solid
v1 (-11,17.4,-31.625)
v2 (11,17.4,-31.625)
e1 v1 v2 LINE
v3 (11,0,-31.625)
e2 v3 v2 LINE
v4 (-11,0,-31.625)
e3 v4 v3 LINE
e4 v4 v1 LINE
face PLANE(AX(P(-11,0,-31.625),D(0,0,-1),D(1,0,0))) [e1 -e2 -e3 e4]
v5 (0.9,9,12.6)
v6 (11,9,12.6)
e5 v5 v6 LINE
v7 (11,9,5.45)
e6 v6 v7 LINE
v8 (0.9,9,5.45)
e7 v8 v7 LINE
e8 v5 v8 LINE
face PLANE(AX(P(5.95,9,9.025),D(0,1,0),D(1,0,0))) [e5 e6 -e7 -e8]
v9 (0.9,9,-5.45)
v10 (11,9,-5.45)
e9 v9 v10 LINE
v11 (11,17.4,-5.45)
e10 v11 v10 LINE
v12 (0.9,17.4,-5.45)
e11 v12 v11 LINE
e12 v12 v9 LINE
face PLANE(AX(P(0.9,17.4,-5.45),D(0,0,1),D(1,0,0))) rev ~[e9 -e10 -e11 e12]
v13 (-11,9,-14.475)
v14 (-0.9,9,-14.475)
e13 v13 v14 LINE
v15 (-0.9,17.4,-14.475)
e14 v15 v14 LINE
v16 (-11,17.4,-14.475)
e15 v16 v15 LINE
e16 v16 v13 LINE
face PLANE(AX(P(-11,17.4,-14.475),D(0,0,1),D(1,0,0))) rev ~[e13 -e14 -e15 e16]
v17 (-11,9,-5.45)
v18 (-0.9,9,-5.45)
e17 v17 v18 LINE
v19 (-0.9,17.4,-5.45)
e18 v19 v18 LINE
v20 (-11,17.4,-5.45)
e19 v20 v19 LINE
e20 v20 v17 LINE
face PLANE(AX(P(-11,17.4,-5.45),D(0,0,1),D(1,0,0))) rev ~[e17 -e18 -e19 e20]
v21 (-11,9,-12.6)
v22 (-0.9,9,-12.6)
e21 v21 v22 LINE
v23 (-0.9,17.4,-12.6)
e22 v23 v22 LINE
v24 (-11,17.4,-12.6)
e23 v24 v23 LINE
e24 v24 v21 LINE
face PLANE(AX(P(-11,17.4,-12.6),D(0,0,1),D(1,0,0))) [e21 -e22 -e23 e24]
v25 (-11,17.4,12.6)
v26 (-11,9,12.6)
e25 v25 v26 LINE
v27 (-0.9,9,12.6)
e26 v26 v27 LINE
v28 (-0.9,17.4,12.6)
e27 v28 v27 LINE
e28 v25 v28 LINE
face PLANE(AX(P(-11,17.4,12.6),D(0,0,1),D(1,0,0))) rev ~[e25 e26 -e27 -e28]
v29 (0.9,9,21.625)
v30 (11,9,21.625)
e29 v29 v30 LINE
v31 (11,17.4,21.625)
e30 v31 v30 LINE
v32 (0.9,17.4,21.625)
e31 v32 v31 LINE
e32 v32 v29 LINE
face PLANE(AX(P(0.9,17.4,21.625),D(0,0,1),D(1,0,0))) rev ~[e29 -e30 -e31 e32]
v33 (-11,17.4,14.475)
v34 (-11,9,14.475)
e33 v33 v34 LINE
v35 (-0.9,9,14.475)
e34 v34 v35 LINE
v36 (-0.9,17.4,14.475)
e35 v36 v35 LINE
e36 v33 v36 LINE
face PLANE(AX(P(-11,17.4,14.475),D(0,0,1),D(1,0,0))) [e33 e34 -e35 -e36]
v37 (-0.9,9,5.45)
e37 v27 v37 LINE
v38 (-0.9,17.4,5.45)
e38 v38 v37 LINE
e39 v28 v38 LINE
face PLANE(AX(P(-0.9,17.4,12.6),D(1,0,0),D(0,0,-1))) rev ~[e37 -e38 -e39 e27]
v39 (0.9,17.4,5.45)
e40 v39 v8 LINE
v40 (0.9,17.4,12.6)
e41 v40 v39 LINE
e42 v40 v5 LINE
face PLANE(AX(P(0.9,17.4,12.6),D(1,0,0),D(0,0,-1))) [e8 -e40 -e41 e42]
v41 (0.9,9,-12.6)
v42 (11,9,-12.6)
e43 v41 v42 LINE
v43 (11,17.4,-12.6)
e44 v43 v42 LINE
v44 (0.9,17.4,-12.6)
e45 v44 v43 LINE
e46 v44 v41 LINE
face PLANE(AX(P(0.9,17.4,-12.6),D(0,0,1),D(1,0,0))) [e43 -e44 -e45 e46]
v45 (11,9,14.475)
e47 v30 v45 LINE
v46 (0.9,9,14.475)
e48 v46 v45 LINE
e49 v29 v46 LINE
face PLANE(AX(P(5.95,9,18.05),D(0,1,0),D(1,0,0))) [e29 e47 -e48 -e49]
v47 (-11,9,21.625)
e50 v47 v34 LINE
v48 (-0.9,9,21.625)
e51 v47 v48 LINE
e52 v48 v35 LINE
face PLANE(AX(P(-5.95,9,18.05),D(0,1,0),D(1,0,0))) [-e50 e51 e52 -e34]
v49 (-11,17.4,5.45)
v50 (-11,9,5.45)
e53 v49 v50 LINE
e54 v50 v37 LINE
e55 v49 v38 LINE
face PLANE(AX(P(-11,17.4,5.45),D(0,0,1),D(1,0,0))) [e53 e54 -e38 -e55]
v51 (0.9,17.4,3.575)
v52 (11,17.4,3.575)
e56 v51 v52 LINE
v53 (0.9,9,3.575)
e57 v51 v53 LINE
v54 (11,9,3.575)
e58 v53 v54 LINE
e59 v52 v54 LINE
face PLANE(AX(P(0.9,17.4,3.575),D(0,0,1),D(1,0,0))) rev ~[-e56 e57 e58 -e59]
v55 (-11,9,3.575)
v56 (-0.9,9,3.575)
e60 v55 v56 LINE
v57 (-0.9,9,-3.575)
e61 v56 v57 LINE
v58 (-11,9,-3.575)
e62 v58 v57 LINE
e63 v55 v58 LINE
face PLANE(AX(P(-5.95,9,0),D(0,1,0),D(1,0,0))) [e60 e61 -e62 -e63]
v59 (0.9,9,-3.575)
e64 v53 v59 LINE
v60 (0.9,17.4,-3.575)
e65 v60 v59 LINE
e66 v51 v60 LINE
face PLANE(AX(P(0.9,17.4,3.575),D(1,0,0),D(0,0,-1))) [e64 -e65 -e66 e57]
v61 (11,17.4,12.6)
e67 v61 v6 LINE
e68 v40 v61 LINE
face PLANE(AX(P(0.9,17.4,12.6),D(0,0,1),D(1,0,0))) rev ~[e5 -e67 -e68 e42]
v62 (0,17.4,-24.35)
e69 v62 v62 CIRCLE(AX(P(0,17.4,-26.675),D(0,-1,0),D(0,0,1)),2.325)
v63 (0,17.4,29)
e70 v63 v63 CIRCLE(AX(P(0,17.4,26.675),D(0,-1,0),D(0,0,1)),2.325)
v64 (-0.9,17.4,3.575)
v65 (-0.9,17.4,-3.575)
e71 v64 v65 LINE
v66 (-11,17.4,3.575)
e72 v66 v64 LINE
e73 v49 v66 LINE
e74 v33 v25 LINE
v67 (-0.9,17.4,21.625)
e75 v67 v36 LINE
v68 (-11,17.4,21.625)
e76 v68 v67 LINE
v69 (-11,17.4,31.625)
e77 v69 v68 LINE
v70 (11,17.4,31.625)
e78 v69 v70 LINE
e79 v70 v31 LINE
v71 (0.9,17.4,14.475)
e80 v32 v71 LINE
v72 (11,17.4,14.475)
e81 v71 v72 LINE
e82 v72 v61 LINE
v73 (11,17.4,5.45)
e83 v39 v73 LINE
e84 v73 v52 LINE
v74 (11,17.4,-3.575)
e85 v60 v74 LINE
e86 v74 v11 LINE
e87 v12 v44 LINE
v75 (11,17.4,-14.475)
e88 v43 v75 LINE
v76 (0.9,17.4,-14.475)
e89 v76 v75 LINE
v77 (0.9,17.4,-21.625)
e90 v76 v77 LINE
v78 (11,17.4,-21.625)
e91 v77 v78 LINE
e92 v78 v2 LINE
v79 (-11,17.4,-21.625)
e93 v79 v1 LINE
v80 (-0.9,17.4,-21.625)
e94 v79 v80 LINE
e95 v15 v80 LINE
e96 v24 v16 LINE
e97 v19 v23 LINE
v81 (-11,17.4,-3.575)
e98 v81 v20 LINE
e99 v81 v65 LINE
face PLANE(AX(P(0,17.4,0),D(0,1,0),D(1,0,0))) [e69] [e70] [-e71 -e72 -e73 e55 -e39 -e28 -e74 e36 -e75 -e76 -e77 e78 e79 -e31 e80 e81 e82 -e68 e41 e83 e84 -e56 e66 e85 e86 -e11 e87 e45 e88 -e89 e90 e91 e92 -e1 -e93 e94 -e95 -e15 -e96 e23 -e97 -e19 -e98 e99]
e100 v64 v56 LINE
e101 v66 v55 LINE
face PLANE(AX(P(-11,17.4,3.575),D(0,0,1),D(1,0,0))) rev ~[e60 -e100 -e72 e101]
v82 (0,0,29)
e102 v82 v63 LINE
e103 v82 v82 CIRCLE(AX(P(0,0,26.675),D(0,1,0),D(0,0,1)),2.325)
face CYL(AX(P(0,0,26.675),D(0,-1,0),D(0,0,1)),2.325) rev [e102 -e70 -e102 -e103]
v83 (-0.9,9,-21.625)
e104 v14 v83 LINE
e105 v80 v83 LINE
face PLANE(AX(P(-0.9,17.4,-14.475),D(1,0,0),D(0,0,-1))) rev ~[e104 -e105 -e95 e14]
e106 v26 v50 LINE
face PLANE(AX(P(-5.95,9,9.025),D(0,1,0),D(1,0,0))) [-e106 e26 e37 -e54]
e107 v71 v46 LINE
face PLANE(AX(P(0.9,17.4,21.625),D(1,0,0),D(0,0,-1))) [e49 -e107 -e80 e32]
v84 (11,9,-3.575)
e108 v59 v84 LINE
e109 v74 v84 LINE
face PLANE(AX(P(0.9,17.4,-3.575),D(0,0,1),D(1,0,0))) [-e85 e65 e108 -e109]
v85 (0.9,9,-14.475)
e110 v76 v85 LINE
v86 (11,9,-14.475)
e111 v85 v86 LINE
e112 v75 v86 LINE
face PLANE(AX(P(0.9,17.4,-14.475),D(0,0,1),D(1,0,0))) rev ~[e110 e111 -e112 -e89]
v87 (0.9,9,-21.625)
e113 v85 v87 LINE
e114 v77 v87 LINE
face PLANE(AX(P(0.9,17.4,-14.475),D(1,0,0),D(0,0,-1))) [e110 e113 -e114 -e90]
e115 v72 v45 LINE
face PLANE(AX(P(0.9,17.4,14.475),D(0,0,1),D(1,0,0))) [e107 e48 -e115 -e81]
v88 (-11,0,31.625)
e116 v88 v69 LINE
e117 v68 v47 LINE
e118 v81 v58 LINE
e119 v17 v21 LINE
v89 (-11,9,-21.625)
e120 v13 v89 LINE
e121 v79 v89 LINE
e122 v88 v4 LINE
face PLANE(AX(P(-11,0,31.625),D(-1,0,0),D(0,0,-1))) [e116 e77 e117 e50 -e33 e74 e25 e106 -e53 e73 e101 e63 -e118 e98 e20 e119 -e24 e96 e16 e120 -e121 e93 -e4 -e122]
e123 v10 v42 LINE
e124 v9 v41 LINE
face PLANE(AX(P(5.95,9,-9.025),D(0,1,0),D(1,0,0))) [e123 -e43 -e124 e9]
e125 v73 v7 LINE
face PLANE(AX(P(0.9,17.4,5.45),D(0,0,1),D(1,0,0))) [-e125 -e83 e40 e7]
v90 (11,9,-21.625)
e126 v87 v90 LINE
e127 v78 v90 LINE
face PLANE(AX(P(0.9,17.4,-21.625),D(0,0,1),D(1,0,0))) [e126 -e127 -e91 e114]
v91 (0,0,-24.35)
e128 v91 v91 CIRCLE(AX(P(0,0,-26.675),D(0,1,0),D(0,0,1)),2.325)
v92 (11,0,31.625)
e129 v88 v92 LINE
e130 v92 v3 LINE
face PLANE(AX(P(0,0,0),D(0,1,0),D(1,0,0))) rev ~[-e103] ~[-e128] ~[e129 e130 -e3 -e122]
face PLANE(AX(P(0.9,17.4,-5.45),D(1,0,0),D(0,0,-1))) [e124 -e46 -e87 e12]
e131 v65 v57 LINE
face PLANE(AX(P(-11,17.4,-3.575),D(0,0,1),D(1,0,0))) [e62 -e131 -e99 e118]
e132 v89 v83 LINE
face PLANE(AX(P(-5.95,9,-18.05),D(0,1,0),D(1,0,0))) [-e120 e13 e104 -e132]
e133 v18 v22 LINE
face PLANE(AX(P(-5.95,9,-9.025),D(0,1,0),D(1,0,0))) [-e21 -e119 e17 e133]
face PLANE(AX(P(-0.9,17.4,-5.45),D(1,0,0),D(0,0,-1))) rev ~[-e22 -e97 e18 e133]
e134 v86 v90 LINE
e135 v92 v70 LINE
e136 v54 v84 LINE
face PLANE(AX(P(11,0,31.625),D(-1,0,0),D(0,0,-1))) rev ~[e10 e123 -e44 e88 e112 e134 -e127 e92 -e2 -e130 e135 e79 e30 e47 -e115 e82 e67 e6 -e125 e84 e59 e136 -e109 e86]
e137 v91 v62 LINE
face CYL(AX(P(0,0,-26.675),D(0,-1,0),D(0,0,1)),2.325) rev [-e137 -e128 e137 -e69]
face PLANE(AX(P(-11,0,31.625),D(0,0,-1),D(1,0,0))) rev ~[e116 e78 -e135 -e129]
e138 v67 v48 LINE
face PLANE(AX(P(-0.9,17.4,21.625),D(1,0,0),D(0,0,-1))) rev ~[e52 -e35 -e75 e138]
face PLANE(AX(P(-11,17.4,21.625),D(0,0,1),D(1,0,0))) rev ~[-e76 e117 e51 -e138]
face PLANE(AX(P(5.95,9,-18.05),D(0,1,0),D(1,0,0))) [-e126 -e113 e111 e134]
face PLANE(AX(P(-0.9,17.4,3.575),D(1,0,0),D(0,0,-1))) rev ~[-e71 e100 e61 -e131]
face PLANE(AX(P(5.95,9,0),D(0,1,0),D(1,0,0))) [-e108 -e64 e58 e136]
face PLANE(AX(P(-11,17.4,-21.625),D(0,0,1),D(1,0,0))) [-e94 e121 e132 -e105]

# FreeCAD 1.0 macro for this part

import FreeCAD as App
import Part
import Sketcher
from FreeCAD import Vector
Q = App.Units.Quantity

doc = App.newDocument("Part")
body = doc.addObject("PartDesign::Body", "Body")

# Sketch on XZ plane
sketch1 = doc.addObject("Sketcher::SketchObject", "Sketch")
body.addObject(sketch1)
sketch1.AttachmentSupport = (doc.XZ_Plane, [""])
sketch1.MapMode = "FlatFace"
sketch1.addGeometry([
    Part.LineSegment(Vector(-11, -32, 0), Vector(-11, 32, 0)),
    Part.LineSegment(Vector(-11, 32, 0), Vector(11, 32, 0)),
    Part.LineSegment(Vector(11, 32, 0), Vector(11, -32, 0)),
    Part.LineSegment(Vector(11, -32, 0), Vector(-11, -32, 0)),
], False)
sketch1.addConstraint([
    Sketcher.Constraint("Coincident", 0, 2, 1, 1),
    Sketcher.Constraint("Coincident", 1, 2, 2, 1),
    Sketcher.Constraint("Coincident", 2, 2, 3, 1),
    Sketcher.Constraint("Coincident", 3, 2, 0, 1),
    Sketcher.Constraint("Vertical", 0),
    Sketcher.Constraint("Horizontal", 1),
    Sketcher.Constraint("Vertical", 2),
    Sketcher.Constraint("Horizontal", 3),
    Sketcher.Constraint("Symmetric", 0, 2, 2, 2, -1, 1),
    Sketcher.Constraint("DistanceX", 1, 1, 1, 2, Q("22 mm")),
    Sketcher.Constraint("DistanceY", 0, 1, 0, 2, Q("63.25 mm")),
])
pad1 = doc.addObject("PartDesign::Pad", "Pad")
body.addObject(pad1)
pad1.Profile = sketch1
pad1.Length = 17.4
pad1.Reversed = True

# Sketch on XZ plane
sketch2 = doc.addObject("Sketcher::SketchObject", "Sketch001")
body.addObject(sketch2)
sketch2.AttachmentSupport = (doc.XZ_Plane, [""])
sketch2.MapMode = "FlatFace"
sketch2.AttachmentOffset = App.Placement(Vector(0, 0, -17.4), App.Rotation())
sketch2.addGeometry([
    Part.LineSegment(Vector(-11, -22, 0), Vector(-11, -14, 0)),  # 0
    Part.LineSegment(Vector(-11, -14, 0), Vector(-1, -14, 0)),  # 1
    Part.LineSegment(Vector(-1, -14, 0), Vector(-1, -22, 0)),  # 2
    Part.LineSegment(Vector(-1, -22, 0), Vector(-11, -22, 0)),  # 3
    Part.LineSegment(Vector(1, -22, 0), Vector(1, -14, 0)),  # 4
    Part.LineSegment(Vector(1, -14, 0), Vector(11, -14, 0)),  # 5
    Part.LineSegment(Vector(11, -14, 0), Vector(11, -22, 0)),  # 6
    Part.LineSegment(Vector(11, -22, 0), Vector(1, -22, 0)),  # 7
    Part.LineSegment(Vector(-11, -13, 0), Vector(-11, -5, 0)),  # 8
    Part.LineSegment(Vector(-11, -5, 0), Vector(-1, -5, 0)),  # 9
    Part.LineSegment(Vector(-1, -5, 0), Vector(-1, -13, 0)),  # 10
    Part.LineSegment(Vector(-1, -13, 0), Vector(-11, -13, 0)),  # 11
    Part.LineSegment(Vector(1, -13, 0), Vector(1, -5, 0)),  # 12
    Part.LineSegment(Vector(1, -5, 0), Vector(11, -5, 0)),  # 13
    Part.LineSegment(Vector(11, -5, 0), Vector(11, -13, 0)),  # 14
    Part.LineSegment(Vector(11, -13, 0), Vector(1, -13, 0)),  # 15
    Part.LineSegment(Vector(-11, -4, 0), Vector(-11, 4, 0)),  # 16
    Part.LineSegment(Vector(-11, 4, 0), Vector(-1, 4, 0)),  # 17
    Part.LineSegment(Vector(-1, 4, 0), Vector(-1, -4, 0)),  # 18
    Part.LineSegment(Vector(-1, -4, 0), Vector(-11, -4, 0)),  # 19
    Part.LineSegment(Vector(1, -4, 0), Vector(1, 4, 0)),  # 20
    Part.LineSegment(Vector(1, 4, 0), Vector(11, 4, 0)),  # 21
    Part.LineSegment(Vector(11, 4, 0), Vector(11, -4, 0)),  # 22
    Part.LineSegment(Vector(11, -4, 0), Vector(1, -4, 0)),  # 23
    Part.LineSegment(Vector(-11, 5, 0), Vector(-11, 13, 0)),  # 24
    Part.LineSegment(Vector(-11, 13, 0), Vector(-1, 13, 0)),  # 25
    Part.LineSegment(Vector(-1, 13, 0), Vector(-1, 5, 0)),  # 26
    Part.LineSegment(Vector(-1, 5, 0), Vector(-11, 5, 0)),  # 27
    Part.LineSegment(Vector(1, 5, 0), Vector(1, 13, 0)),  # 28
    Part.LineSegment(Vector(1, 13, 0), Vector(11, 13, 0)),  # 29
    Part.LineSegment(Vector(11, 13, 0), Vector(11, 5, 0)),  # 30
    Part.LineSegment(Vector(11, 5, 0), Vector(1, 5, 0)),  # 31
    Part.LineSegment(Vector(-11, 14, 0), Vector(-11, 22, 0)),  # 32
    Part.LineSegment(Vector(-11, 22, 0), Vector(-1, 22, 0)),  # 33
    Part.LineSegment(Vector(-1, 22, 0), Vector(-1, 14, 0)),  # 34
    Part.LineSegment(Vector(-1, 14, 0), Vector(-11, 14, 0)),  # 35
    Part.LineSegment(Vector(1, 14, 0), Vector(1, 22, 0)),  # 36
    Part.LineSegment(Vector(1, 22, 0), Vector(11, 22, 0)),  # 37
    Part.LineSegment(Vector(11, 22, 0), Vector(11, 14, 0)),  # 38
    Part.LineSegment(Vector(11, 14, 0), Vector(1, 14, 0)),  # 39
], False)
sketch2.addConstraint([
    Sketcher.Constraint("Coincident", 0, 2, 1, 1),
    Sketcher.Constraint("Coincident", 1, 2, 2, 1),
    Sketcher.Constraint("Coincident", 2, 2, 3, 1),
    Sketcher.Constraint("Coincident", 3, 2, 0, 1),
    Sketcher.Constraint("Coincident", 4, 2, 5, 1),
    Sketcher.Constraint("Coincident", 5, 2, 6, 1),
    Sketcher.Constraint("Coincident", 6, 2, 7, 1),
    Sketcher.Constraint("Coincident", 7, 2, 4, 1),
    Sketcher.Constraint("Coincident", 8, 2, 9, 1),
    Sketcher.Constraint("Coincident", 9, 2, 10, 1),
    Sketcher.Constraint("Coincident", 10, 2, 11, 1),
    Sketcher.Constraint("Coincident", 11, 2, 8, 1),
    Sketcher.Constraint("Coincident", 12, 2, 13, 1),
    Sketcher.Constraint("Coincident", 13, 2, 14, 1),
    Sketcher.Constraint("Coincident", 14, 2, 15, 1),
    Sketcher.Constraint("Coincident", 15, 2, 12, 1),
    Sketcher.Constraint("Coincident", 16, 2, 17, 1),
    Sketcher.Constraint("Coincident", 17, 2, 18, 1),
    Sketcher.Constraint("Coincident", 18, 2, 19, 1),
    Sketcher.Constraint("Coincident", 19, 2, 16, 1),
    Sketcher.Constraint("Coincident", 20, 2, 21, 1),
    Sketcher.Constraint("Coincident", 21, 2, 22, 1),
    Sketcher.Constraint("Coincident", 22, 2, 23, 1),
    Sketcher.Constraint("Coincident", 23, 2, 20, 1),
    Sketcher.Constraint("Coincident", 24, 2, 25, 1),
    Sketcher.Constraint("Coincident", 25, 2, 26, 1),
    Sketcher.Constraint("Coincident", 26, 2, 27, 1),
    Sketcher.Constraint("Coincident", 27, 2, 24, 1),
    Sketcher.Constraint("Coincident", 28, 2, 29, 1),
    Sketcher.Constraint("Coincident", 29, 2, 30, 1),
    Sketcher.Constraint("Coincident", 30, 2, 31, 1),
    Sketcher.Constraint("Coincident", 31, 2, 28, 1),
    Sketcher.Constraint("Coincident", 32, 2, 33, 1),
    Sketcher.Constraint("Coincident", 33, 2, 34, 1),
    Sketcher.Constraint("Coincident", 34, 2, 35, 1),
    Sketcher.Constraint("Coincident", 35, 2, 32, 1),
    Sketcher.Constraint("Coincident", 36, 2, 37, 1),
    Sketcher.Constraint("Coincident", 37, 2, 38, 1),
    Sketcher.Constraint("Coincident", 38, 2, 39, 1),
    Sketcher.Constraint("Coincident", 39, 2, 36, 1),
    Sketcher.Constraint("Vertical", 0),
    Sketcher.Constraint("Horizontal", 1),
    Sketcher.Constraint("Vertical", 2),
    Sketcher.Constraint("Horizontal", 3),
    Sketcher.Constraint("Vertical", 4),
    Sketcher.Constraint("Horizontal", 5),
    Sketcher.Constraint("Vertical", 6),
    Sketcher.Constraint("Horizontal", 7),
    Sketcher.Constraint("Vertical", 8),
    Sketcher.Constraint("Horizontal", 9),
    Sketcher.Constraint("Vertical", 10),
    Sketcher.Constraint("Horizontal", 11),
    Sketcher.Constraint("Vertical", 12),
    Sketcher.Constraint("Horizontal", 13),
    Sketcher.Constraint("Vertical", 14),
    Sketcher.Constraint("Horizontal", 15),
    Sketcher.Constraint("Vertical", 16),
    Sketcher.Constraint("Horizontal", 17),
    Sketcher.Constraint("Vertical", 18),
    Sketcher.Constraint("Horizontal", 19),
    Sketcher.Constraint("Vertical", 20),
    Sketcher.Constraint("Horizontal", 21),
    Sketcher.Constraint("Vertical", 22),
    Sketcher.Constraint("Horizontal", 23),
    Sketcher.Constraint("Vertical", 24),
    Sketcher.Constraint("Horizontal", 25),
    Sketcher.Constraint("Vertical", 26),
    Sketcher.Constraint("Horizontal", 27),
    Sketcher.Constraint("Vertical", 28),
    Sketcher.Constraint("Horizontal", 29),
    Sketcher.Constraint("Vertical", 30),
    Sketcher.Constraint("Horizontal", 31),
    Sketcher.Constraint("Vertical", 32),
    Sketcher.Constraint("Horizontal", 33),
    Sketcher.Constraint("Vertical", 34),
    Sketcher.Constraint("Horizontal", 35),
    Sketcher.Constraint("Vertical", 36),
    Sketcher.Constraint("Horizontal", 37),
    Sketcher.Constraint("Vertical", 38),
    Sketcher.Constraint("Horizontal", 39),
    Sketcher.Constraint("Symmetric", 18, 2, 20, 2, -1, 1),
    Sketcher.Constraint("Symmetric", 16, 2, 22, 2, -1, 1),
    Sketcher.Constraint("Symmetric", 14, 2, 24, 2, -1, 1),
    Sketcher.Constraint("Symmetric", 12, 2, 26, 2, -1, 1),
    Sketcher.Constraint("Symmetric", 10, 2, 28, 2, -1, 1),
    Sketcher.Constraint("Symmetric", 8, 2, 30, 2, -1, 1),
    Sketcher.Constraint("Symmetric", 6, 2, 32, 2, -1, 1),
    Sketcher.Constraint("Symmetric", 4, 2, 34, 2, -1, 1),
    Sketcher.Constraint("Symmetric", 2, 2, 36, 2, -1, 1),
    Sketcher.Constraint("Symmetric", 0, 2, 38, 2, -1, 1),
    Sketcher.Constraint("Symmetric", 1, 2, 4, 2, -2),
    Sketcher.Constraint("Symmetric", 3, 2, 6, 2, -2),
    Sketcher.Constraint("Symmetric", 9, 2, 12, 2, -2),
    Sketcher.Constraint("Symmetric", 11, 2, 14, 2, -2),
    Sketcher.Constraint("Horizontal", 17, 2, 20, 2),
    Sketcher.Constraint("Vertical", 3, 2, 8, 2),
    Sketcher.Constraint("Vertical", 2, 2, 9, 2),
    Sketcher.Constraint("Vertical", 11, 2, 16, 2),
    Sketcher.Constraint("Vertical", 10, 2, 17, 2),
    Sketcher.Constraint("Equal", 6, 8),
    Sketcher.Constraint("Equal", 14, 16),
    Sketcher.Constraint("DistanceX", 1, 1, 1, 2, Q("10.1 mm")),
    Sketcher.Constraint("DistanceX", 0, 2, -1, 1, Q("11 mm")),
    Sketcher.Constraint("DistanceY", 0, 1, 0, 2, Q("7.15 mm")),
    Sketcher.Constraint("DistanceY", 10, 2, -1, 1, Q("12.6 mm")),
    Sketcher.Constraint("DistanceY", 5, 2, 22, 2, Q("10.9 mm")),
])
pocket1 = doc.addObject("PartDesign::Pocket", "Pocket")
body.addObject(pocket1)
pocket1.Profile = sketch2
pocket1.Length = 8.4
pocket1.Reversed = True

# Sketch on XZ plane
sketch3 = doc.addObject("Sketcher::SketchObject", "Sketch002")
body.addObject(sketch3)
sketch3.AttachmentSupport = (doc.XZ_Plane, [""])
sketch3.MapMode = "FlatFace"
sketch3.addGeometry([
    Part.Circle(Vector(0, -26.7, 0), Vector(0, 0, 1), 2.3),
    Part.Circle(Vector(0, 26.7, 0), Vector(0, 0, 1), 2.3),
], False)
sketch3.addConstraint([
    Sketcher.Constraint("Equal", 0, 1),
    Sketcher.Constraint("Symmetric", 0, 3, 1, 3, -1, 1),
    Sketcher.Constraint("PointOnObject", 0, 3, -2),
    Sketcher.Constraint("Diameter", 0, Q("4.65 mm")),
    Sketcher.Constraint("DistanceY", 0, 3, 1, 3, Q("53.35 mm")),
])
pocket2 = doc.addObject("PartDesign::Pocket", "Pocket001")
body.addObject(pocket2)
pocket2.Profile = sketch3
pocket2.Type = "ThroughAll"

doc.recompute()
